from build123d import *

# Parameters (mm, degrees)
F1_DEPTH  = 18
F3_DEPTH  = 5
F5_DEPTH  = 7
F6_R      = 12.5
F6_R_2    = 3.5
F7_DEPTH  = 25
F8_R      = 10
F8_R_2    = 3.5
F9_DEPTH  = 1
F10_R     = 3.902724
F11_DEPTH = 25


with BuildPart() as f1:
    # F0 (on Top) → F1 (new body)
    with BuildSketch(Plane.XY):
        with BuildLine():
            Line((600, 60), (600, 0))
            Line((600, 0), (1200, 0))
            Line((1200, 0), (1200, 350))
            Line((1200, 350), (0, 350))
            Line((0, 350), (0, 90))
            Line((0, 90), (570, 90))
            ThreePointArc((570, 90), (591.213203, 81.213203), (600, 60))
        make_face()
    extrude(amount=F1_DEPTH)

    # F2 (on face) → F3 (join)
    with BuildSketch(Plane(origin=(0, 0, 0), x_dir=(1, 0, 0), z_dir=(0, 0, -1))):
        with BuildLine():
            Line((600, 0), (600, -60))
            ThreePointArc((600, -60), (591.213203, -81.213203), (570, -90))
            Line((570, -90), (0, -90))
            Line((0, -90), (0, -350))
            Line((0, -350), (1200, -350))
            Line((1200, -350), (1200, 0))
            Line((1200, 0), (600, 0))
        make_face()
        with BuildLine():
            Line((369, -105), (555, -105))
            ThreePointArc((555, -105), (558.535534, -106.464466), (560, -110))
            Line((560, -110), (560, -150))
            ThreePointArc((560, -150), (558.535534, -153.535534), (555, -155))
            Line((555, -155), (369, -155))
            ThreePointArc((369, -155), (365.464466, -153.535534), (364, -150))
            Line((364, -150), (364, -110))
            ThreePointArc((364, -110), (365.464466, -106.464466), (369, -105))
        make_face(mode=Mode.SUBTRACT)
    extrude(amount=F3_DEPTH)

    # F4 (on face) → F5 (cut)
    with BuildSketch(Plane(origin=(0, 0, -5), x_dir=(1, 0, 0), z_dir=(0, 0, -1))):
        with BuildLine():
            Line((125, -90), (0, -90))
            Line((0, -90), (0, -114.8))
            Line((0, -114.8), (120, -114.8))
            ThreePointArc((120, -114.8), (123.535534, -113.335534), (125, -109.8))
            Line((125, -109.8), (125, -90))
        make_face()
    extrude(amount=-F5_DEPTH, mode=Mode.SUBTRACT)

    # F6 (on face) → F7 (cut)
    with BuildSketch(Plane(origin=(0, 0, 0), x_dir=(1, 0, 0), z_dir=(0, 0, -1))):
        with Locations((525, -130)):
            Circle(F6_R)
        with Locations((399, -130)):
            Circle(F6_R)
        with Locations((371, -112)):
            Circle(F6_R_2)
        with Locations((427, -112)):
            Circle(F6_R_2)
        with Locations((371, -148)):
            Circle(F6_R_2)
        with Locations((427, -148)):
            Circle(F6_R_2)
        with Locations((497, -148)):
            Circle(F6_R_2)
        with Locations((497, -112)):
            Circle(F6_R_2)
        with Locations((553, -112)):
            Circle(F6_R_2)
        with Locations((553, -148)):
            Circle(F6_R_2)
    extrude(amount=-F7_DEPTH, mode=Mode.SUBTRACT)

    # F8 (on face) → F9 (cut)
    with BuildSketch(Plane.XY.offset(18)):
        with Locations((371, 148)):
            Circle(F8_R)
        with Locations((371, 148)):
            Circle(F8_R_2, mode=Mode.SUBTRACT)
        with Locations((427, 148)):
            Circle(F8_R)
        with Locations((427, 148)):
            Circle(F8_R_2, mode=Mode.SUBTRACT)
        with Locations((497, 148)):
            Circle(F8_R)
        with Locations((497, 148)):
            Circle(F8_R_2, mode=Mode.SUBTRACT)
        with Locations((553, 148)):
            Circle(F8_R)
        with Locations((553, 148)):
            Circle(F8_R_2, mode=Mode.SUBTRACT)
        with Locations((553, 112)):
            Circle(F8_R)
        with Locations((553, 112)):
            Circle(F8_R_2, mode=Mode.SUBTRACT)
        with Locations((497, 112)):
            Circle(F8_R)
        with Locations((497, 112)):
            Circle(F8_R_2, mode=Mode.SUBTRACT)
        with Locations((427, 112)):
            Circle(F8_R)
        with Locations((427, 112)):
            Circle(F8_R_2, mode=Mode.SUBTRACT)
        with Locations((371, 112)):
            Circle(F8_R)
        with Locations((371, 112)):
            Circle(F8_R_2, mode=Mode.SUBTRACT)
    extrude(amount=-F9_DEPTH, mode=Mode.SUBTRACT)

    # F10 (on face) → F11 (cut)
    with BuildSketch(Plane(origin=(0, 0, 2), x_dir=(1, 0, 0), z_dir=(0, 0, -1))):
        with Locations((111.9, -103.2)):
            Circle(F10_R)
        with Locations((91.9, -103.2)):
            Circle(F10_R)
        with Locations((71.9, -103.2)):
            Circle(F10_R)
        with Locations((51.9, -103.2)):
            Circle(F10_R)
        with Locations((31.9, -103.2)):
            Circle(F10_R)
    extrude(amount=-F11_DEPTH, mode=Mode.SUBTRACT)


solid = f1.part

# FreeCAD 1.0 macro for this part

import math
import FreeCAD as App
import Part
import Sketcher
from FreeCAD import Vector
Q = App.Units.Quantity

doc = App.newDocument("Part")
body = doc.addObject("PartDesign::Body", "Body")

# Sketch on XY plane
sketch1 = doc.addObject("Sketcher::SketchObject", "Sketch")
body.addObject(sketch1)
sketch1.AttachmentSupport = (doc.XY_Plane, [""])
sketch1.MapMode = "FlatFace"
sketch1.addGeometry([
    Part.LineSegment(Vector(600, 60, 0), Vector(600, 0, 0)),  # 0
    Part.LineSegment(Vector(600, 0, 0), Vector(1200, 0, 0)),  # 1
    Part.LineSegment(Vector(1200, 0, 0), Vector(1200, 350, 0)),  # 2
    Part.LineSegment(Vector(1200, 350, 0), Vector(0, 350, 0)),  # 3
    Part.LineSegment(Vector(0, 350, 0), Vector(0, 90, 0)),  # 4
    Part.LineSegment(Vector(0, 90, 0), Vector(570, 90, 0)),  # 5
    Part.ArcOfCircle(Part.Circle(Vector(569.999999, 59.999999, 0), Vector(0, 0, 1), 30.000001), math.radians(0.000003), math.radians(89.999997)),  # 6
], False)
sketch1.addConstraint([
    Sketcher.Constraint("Coincident", 0, 2, 1, 1),
    Sketcher.Constraint("Coincident", 1, 2, 2, 1),
    Sketcher.Constraint("Coincident", 2, 2, 3, 1),
    Sketcher.Constraint("Coincident", 3, 2, 4, 1),
    Sketcher.Constraint("Coincident", 4, 2, 5, 1),
    Sketcher.Constraint("Tangent", 5, 2, 6, 2),
    Sketcher.Constraint("Tangent", 6, 1, 0, 1),
    Sketcher.Constraint("Vertical", 0),
    Sketcher.Constraint("Horizontal", 1),
    Sketcher.Constraint("Vertical", 2),
    Sketcher.Constraint("Horizontal", 3),
    Sketcher.Constraint("Vertical", 4),
    Sketcher.Constraint("Horizontal", 5),
    Sketcher.Constraint("PointOnObject", 0, 2, -1),
    Sketcher.Constraint("PointOnObject", 3, 2, -2),
    Sketcher.Constraint("Radius", 6, Q("30.000001 mm")),
    Sketcher.Constraint("DistanceX", 1, 1, 1, 2, Q("600 mm")),
    Sketcher.Constraint("DistanceX", 3, 2, 3, 1, Q("1200 mm")),
    Sketcher.Constraint("DistanceY", 0, 2, 0, 1, Q("60 mm")),
    Sketcher.Constraint("DistanceY", 2, 1, 2, 2, Q("350 mm")),
])
pad1 = doc.addObject("PartDesign::Pad", "Pad")
body.addObject(pad1)
pad1.Profile = sketch1
pad1.Length = 18

# Sketch on XY plane
sketch2 = doc.addObject("Sketcher::SketchObject", "Sketch001")
body.addObject(sketch2)
sketch2.AttachmentSupport = (doc.XY_Plane, [""])
sketch2.MapMode = "FlatFace"
sketch2.addGeometry([
    Part.LineSegment(Vector(600, 0, 0), Vector(600, 60, 0)),  # 0
    Part.ArcOfCircle(Part.Circle(Vector(569.999999, 59.999999, 0), Vector(0, 0, 1), 30.000001), math.radians(0.000003), math.radians(89.999997)),  # 1
    Part.LineSegment(Vector(570, 90, 0), Vector(0, 90, 0)),  # 2
    Part.LineSegment(Vector(0, 90, 0), Vector(0, 350, 0)),  # 3
    Part.LineSegment(Vector(0, 350, 0), Vector(1200, 350, 0)),  # 4
    Part.LineSegment(Vector(1200, 350, 0), Vector(1200, 0, 0)),  # 5
    Part.LineSegment(Vector(1200, 0, 0), Vector(600, 0, 0)),  # 6
    Part.ArcOfCircle(Part.Circle(Vector(369, 110, 0), Vector(0, 0, 1), 5), math.radians(179.999996), math.radians(270.000004)),  # 7
    Part.LineSegment(Vector(369, 105, 0), Vector(555, 105, 0)),  # 8
    Part.ArcOfCircle(Part.Circle(Vector(555, 110, 0), Vector(0, 0, 1), 5), math.radians(-90.000004), math.radians(0.000004)),  # 9
    Part.LineSegment(Vector(560, 110, 0), Vector(560, 150, 0)),  # 10
    Part.ArcOfCircle(Part.Circle(Vector(555, 150, 0), Vector(0, 0, 1), 5), math.radians(-0.000004), math.radians(90.000004)),  # 11
    Part.LineSegment(Vector(555, 155, 0), Vector(369, 155, 0)),  # 12
    Part.ArcOfCircle(Part.Circle(Vector(369, 150, 0), Vector(0, 0, 1), 5), math.radians(89.999996), math.radians(180.000004)),  # 13
    Part.LineSegment(Vector(364, 150, 0), Vector(364, 110, 0)),  # 14
], False)
sketch2.addConstraint([
    Sketcher.Constraint("Tangent", 0, 2, 1, 1),
    Sketcher.Constraint("Tangent", 1, 2, 2, 1),
    Sketcher.Constraint("Coincident", 2, 2, 3, 1),
    Sketcher.Constraint("Coincident", 3, 2, 4, 1),
    Sketcher.Constraint("Coincident", 4, 2, 5, 1),
    Sketcher.Constraint("Coincident", 5, 2, 6, 1),
    Sketcher.Constraint("Coincident", 6, 2, 0, 1),
    Sketcher.Constraint("Tangent", 7, 2, 8, 1),
    Sketcher.Constraint("Tangent", 8, 2, 9, 1),
    Sketcher.Constraint("Tangent", 9, 2, 10, 1),
    Sketcher.Constraint("Tangent", 10, 2, 11, 1),
    Sketcher.Constraint("Tangent", 11, 2, 12, 1),
    Sketcher.Constraint("Tangent", 12, 2, 13, 1),
    Sketcher.Constraint("Tangent", 13, 2, 14, 1),
    Sketcher.Constraint("Tangent", 14, 2, 7, 1),
    Sketcher.Constraint("Vertical", 0),
    Sketcher.Constraint("Horizontal", 2),
    Sketcher.Constraint("Vertical", 3),
    Sketcher.Constraint("Horizontal", 4),
    Sketcher.Constraint("Vertical", 5),
    Sketcher.Constraint("Horizontal", 6),
    Sketcher.Constraint("Horizontal", 8),
    Sketcher.Constraint("Vertical", 10),
    Sketcher.Constraint("Horizontal", 12),
    Sketcher.Constraint("Vertical", 14),
    Sketcher.Constraint("Equal", 7, 9),
    Sketcher.Constraint("Equal", 9, 11),
    Sketcher.Constraint("Equal", 11, 13),
    Sketcher.Constraint("PointOnObject", 2, 2, -2),
    Sketcher.Constraint("PointOnObject", 5, 2, -1),
    Sketcher.Constraint("Radius", 1, Q("30.000001 mm")),
    Sketcher.Constraint("Radius", 7, Q("5 mm")),
    Sketcher.Constraint("DistanceX", 2, 2, 2, 1, Q("570 mm")),
    Sketcher.Constraint("DistanceX", 4, 1, 4, 2, Q("1200 mm")),
    Sketcher.Constraint("DistanceX", 8, 1, 8, 2, Q("186 mm")),
    Sketcher.Constraint("DistanceY", 0, 1, 0, 2, Q("60 mm")),
    Sketcher.Constraint("DistanceY", 3, 1, 3, 2, Q("260 mm")),
    Sketcher.Constraint("DistanceY", 10, 1, 10, 2, Q("40 mm")),
    Sketcher.Constraint("DistanceX", -1, 1, 7, 3, Q("369 mm")),
    Sketcher.Constraint("DistanceY", -1, 1, 7, 3, Q("110 mm")),
])
pad2 = doc.addObject("PartDesign::Pad", "Pad001")
body.addObject(pad2)
pad2.Profile = sketch2
pad2.Length = 5
pad2.Reversed = True

# Sketch on XY plane
sketch3 = doc.addObject("Sketcher::SketchObject", "Sketch002")
body.addObject(sketch3)
sketch3.AttachmentSupport = (doc.XY_Plane, [""])
sketch3.MapMode = "FlatFace"
sketch3.AttachmentOffset = App.Placement(Vector(0, 0, -5), App.Rotation())
sketch3.addGeometry([
    Part.LineSegment(Vector(125, 90, 0), Vector(0, 90, 0)),  # 0
    Part.LineSegment(Vector(0, 90, 0), Vector(0, 114.8, 0)),  # 1
    Part.LineSegment(Vector(0, 114.8, 0), Vector(120, 114.8, 0)),  # 2
    Part.ArcOfCircle(Part.Circle(Vector(120, 109.8, 0), Vector(0, 0, 1), 5), math.radians(-0.000004), math.radians(90.000004)),  # 3
    Part.LineSegment(Vector(125, 109.8, 0), Vector(125, 90, 0)),  # 4
], False)
sketch3.addConstraint([
    Sketcher.Constraint("Coincident", 0, 2, 1, 1),
    Sketcher.Constraint("Coincident", 1, 2, 2, 1),
    Sketcher.Constraint("Tangent", 2, 2, 3, 2),
    Sketcher.Constraint("Tangent", 3, 1, 4, 1),
    Sketcher.Constraint("Coincident", 4, 2, 0, 1),
    Sketcher.Constraint("Horizontal", 0),
    Sketcher.Constraint("Vertical", 1),
    Sketcher.Constraint("Horizontal", 2),
    Sketcher.Constraint("Vertical", 4),
    Sketcher.Constraint("PointOnObject", 0, 2, -2),
    Sketcher.Constraint("Radius", 3, Q("5 mm")),
    Sketcher.Constraint("DistanceX", 0, 2, 0, 1, Q("125 mm")),
    Sketcher.Constraint("DistanceY", 1, 1, 1, 2, Q("24.8 mm")),
    Sketcher.Constraint("DistanceY", -1, 1, 0, 2, Q("90 mm")),
])
pocket1 = doc.addObject("PartDesign::Pocket", "Pocket")
body.addObject(pocket1)
pocket1.Profile = sketch3
pocket1.Length = 7
pocket1.Reversed = True

# Sketch on XY plane
sketch4 = doc.addObject("Sketcher::SketchObject", "Sketch003")
body.addObject(sketch4)
sketch4.AttachmentSupport = (doc.XY_Plane, [""])
sketch4.MapMode = "FlatFace"
sketch4.addGeometry([
    Part.Circle(Vector(525, 130, 0), Vector(0, 0, 1), 12.5),  # 0
    Part.Circle(Vector(399, 130, 0), Vector(0, 0, 1), 12.5),  # 1
    Part.Circle(Vector(371, 112, 0), Vector(0, 0, 1), 3.5),  # 2
    Part.Circle(Vector(427, 112, 0), Vector(0, 0, 1), 3.5),  # 3
    Part.Circle(Vector(371, 148, 0), Vector(0, 0, 1), 3.5),  # 4
    Part.Circle(Vector(427, 148, 0), Vector(0, 0, 1), 3.5),  # 5
    Part.Circle(Vector(497, 148, 0), Vector(0, 0, 1), 3.5),  # 6
    Part.Circle(Vector(497, 112, 0), Vector(0, 0, 1), 3.5),  # 7
    Part.Circle(Vector(553, 112, 0), Vector(0, 0, 1), 3.5),  # 8
    Part.Circle(Vector(553, 148, 0), Vector(0, 0, 1), 3.5),  # 9
], False)
sketch4.addConstraint([
    Sketcher.Constraint("Equal", 0, 1),
    Sketcher.Constraint("Equal", 2, 3),
    Sketcher.Constraint("Equal", 3, 4),
    Sketcher.Constraint("Equal", 4, 5),
    Sketcher.Constraint("Equal", 5, 6),
    Sketcher.Constraint("Equal", 6, 7),
    Sketcher.Constraint("Equal", 7, 8),
    Sketcher.Constraint("Equal", 8, 9),
    Sketcher.Constraint("Horizontal", 0, 3, 1, 3),
    Sketcher.Constraint("Horizontal", 2, 3, 3, 3),
    Sketcher.Constraint("Horizontal", 4, 3, 5, 3),
    Sketcher.Constraint("Horizontal", 5, 3, 6, 3),
    Sketcher.Constraint("Horizontal", 3, 3, 7, 3),
    Sketcher.Constraint("Horizontal", 7, 3, 8, 3),
    Sketcher.Constraint("Horizontal", 6, 3, 9, 3),
    Sketcher.Constraint("Vertical", 2, 3, 4, 3),
    Sketcher.Constraint("Vertical", 3, 3, 5, 3),
    Sketcher.Constraint("Vertical", 6, 3, 7, 3),
    Sketcher.Constraint("Vertical", 8, 3, 9, 3),
    Sketcher.Constraint("Diameter", 0, Q("25 mm")),
    Sketcher.Constraint("Diameter", 2, Q("7 mm")),
    Sketcher.Constraint("DistanceX", -1, 1, 0, 3, Q("525 mm")),
    Sketcher.Constraint("DistanceY", -1, 1, 0, 3, Q("130 mm")),
    Sketcher.Constraint("DistanceX", -1, 1, 1, 3, Q("399 mm")),
    Sketcher.Constraint("DistanceX", -1, 1, 2, 3, Q("371 mm")),
    Sketcher.Constraint("DistanceY", -1, 1, 2, 3, Q("112 mm")),
    Sketcher.Constraint("DistanceX", -1, 1, 3, 3, Q("427 mm")),
    Sketcher.Constraint("DistanceY", -1, 1, 4, 3, Q("148 mm")),
    Sketcher.Constraint("DistanceX", -1, 1, 6, 3, Q("497 mm")),
    Sketcher.Constraint("DistanceX", -1, 1, 8, 3, Q("553 mm")),
])
pocket2 = doc.addObject("PartDesign::Pocket", "Pocket001")
body.addObject(pocket2)
pocket2.Profile = sketch4
pocket2.Length = 25
pocket2.Reversed = True

# Sketch on XY plane
sketch5 = doc.addObject("Sketcher::SketchObject", "Sketch004")
body.addObject(sketch5)
sketch5.AttachmentSupport = (doc.XY_Plane, [""])
sketch5.MapMode = "FlatFace"
sketch5.AttachmentOffset = App.Placement(Vector(0, 0, 18), App.Rotation())
sketch5.addGeometry([
    Part.Circle(Vector(371, 148, 0), Vector(0, 0, 1), 10),  # 0
    Part.Circle(Vector(371, 148, 0), Vector(0, 0, 1), 3.5),  # 1
    Part.Circle(Vector(427, 148, 0), Vector(0, 0, 1), 10),  # 2
    Part.Circle(Vector(427, 148, 0), Vector(0, 0, 1), 3.5),  # 3
    Part.Circle(Vector(497, 148, 0), Vector(0, 0, 1), 10),  # 4
    Part.Circle(Vector(497, 148, 0), Vector(0, 0, 1), 3.5),  # 5
    Part.Circle(Vector(553, 148, 0), Vector(0, 0, 1), 10),  # 6
    Part.Circle(Vector(553, 148, 0), Vector(0, 0, 1), 3.5),  # 7
    Part.Circle(Vector(553, 112, 0), Vector(0, 0, 1), 10),  # 8
    Part.Circle(Vector(553, 112, 0), Vector(0, 0, 1), 3.5),  # 9
    Part.Circle(Vector(497, 112, 0), Vector(0, 0, 1), 10),  # 10
    Part.Circle(Vector(497, 112, 0), Vector(0, 0, 1), 3.5),  # 11
    Part.Circle(Vector(427, 112, 0), Vector(0, 0, 1), 10),  # 12
    Part.Circle(Vector(427, 112, 0), Vector(0, 0, 1), 3.5),  # 13
    Part.Circle(Vector(371, 112, 0), Vector(0, 0, 1), 10),  # 14
    Part.Circle(Vector(371, 112, 0), Vector(0, 0, 1), 3.5),  # 15
], False)
sketch5.addConstraint([
    Sketcher.Constraint("Coincident", 1, 3, 0, 3),
    Sketcher.Constraint("Coincident", 3, 3, 2, 3),
    Sketcher.Constraint("Coincident", 5, 3, 4, 3),
    Sketcher.Constraint("Coincident", 7, 3, 6, 3),
    Sketcher.Constraint("Coincident", 9, 3, 8, 3),
    Sketcher.Constraint("Coincident", 11, 3, 10, 3),
    Sketcher.Constraint("Coincident", 13, 3, 12, 3),
    Sketcher.Constraint("Coincident", 15, 3, 14, 3),
    Sketcher.Constraint("Equal", 0, 2),
    Sketcher.Constraint("Equal", 1, 3),
    Sketcher.Constraint("Equal", 2, 4),
    Sketcher.Constraint("Equal", 3, 5),
    Sketcher.Constraint("Equal", 4, 6),
    Sketcher.Constraint("Equal", 5, 7),
    Sketcher.Constraint("Equal", 6, 8),
    Sketcher.Constraint("Equal", 7, 9),
    Sketcher.Constraint("Equal", 8, 10),
    Sketcher.Constraint("Equal", 9, 11),
    Sketcher.Constraint("Equal", 10, 12),
    Sketcher.Constraint("Equal", 11, 13),
    Sketcher.Constraint("Equal", 12, 14),
    Sketcher.Constraint("Equal", 13, 15),
    Sketcher.Constraint("Horizontal", 1, 3, 2, 3),
    Sketcher.Constraint("Horizontal", 3, 3, 4, 3),
    Sketcher.Constraint("Horizontal", 5, 3, 6, 3),
    Sketcher.Constraint("Horizontal", 9, 3, 10, 3),
    Sketcher.Constraint("Horizontal", 11, 3, 12, 3),
    Sketcher.Constraint("Horizontal", 13, 3, 14, 3),
    Sketcher.Constraint("Vertical", 7, 3, 8, 3),
    Sketcher.Constraint("Vertical", 5, 3, 10, 3),
    Sketcher.Constraint("Vertical", 3, 3, 12, 3),
    Sketcher.Constraint("Vertical", 1, 3, 14, 3),
    Sketcher.Constraint("Diameter", 0, Q("20 mm")),
    Sketcher.Constraint("Diameter", 1, Q("7 mm")),
    Sketcher.Constraint("DistanceX", -1, 1, 0, 3, Q("371 mm")),
    Sketcher.Constraint("DistanceY", -1, 1, 0, 3, Q("148 mm")),
    Sketcher.Constraint("DistanceX", -1, 1, 2, 3, Q("427 mm")),
    Sketcher.Constraint("DistanceX", -1, 1, 4, 3, Q("497 mm")),
    Sketcher.Constraint("DistanceX", -1, 1, 6, 3, Q("553 mm")),
    Sketcher.Constraint("DistanceY", -1, 1, 8, 3, Q("112 mm")),
])
pocket3 = doc.addObject("PartDesign::Pocket", "Pocket002")
body.addObject(pocket3)
pocket3.Profile = sketch5
pocket3.Length = 1

# Sketch on XY plane
sketch6 = doc.addObject("Sketcher::SketchObject", "Sketch005")
body.addObject(sketch6)
sketch6.AttachmentSupport = (doc.XY_Plane, [""])
sketch6.MapMode = "FlatFace"
sketch6.AttachmentOffset = App.Placement(Vector(0, 0, 2), App.Rotation())
sketch6.addGeometry([
    Part.Circle(Vector(111.9, 103.2, 0), Vector(0, 0, 1), 3.902724),  # 0
    Part.Circle(Vector(91.9, 103.2, 0), Vector(0, 0, 1), 3.902724),  # 1
    Part.Circle(Vector(71.9, 103.2, 0), Vector(0, 0, 1), 3.902724),  # 2
    Part.Circle(Vector(51.9, 103.2, 0), Vector(0, 0, 1), 3.902724),  # 3
    Part.Circle(Vector(31.9, 103.2, 0), Vector(0, 0, 1), 3.902724),  # 4
], False)
sketch6.addConstraint([
    Sketcher.Constraint("Equal", 0, 1),
    Sketcher.Constraint("Equal", 1, 2),
    Sketcher.Constraint("Equal", 2, 3),
    Sketcher.Constraint("Equal", 3, 4),
    Sketcher.Constraint("Horizontal", 0, 3, 1, 3),
    Sketcher.Constraint("Horizontal", 1, 3, 2, 3),
    Sketcher.Constraint("Horizontal", 2, 3, 3, 3),
    Sketcher.Constraint("Horizontal", 3, 3, 4, 3),
    Sketcher.Constraint("DistanceX", 1, 3, 0, 3, Q("20 mm")),
    Sketcher.Constraint("DistanceX", 2, 3, 1, 3, Q("20 mm")),
    Sketcher.Constraint("DistanceX", 3, 3, 2, 3, Q("20 mm")),
    Sketcher.Constraint("DistanceX", 4, 3, 3, 3, Q("20 mm")),
    Sketcher.Constraint("DistanceX", -1, 1, 0, 3, Q("111.9 mm")),
    Sketcher.Constraint("DistanceY", -1, 1, 0, 3, Q("103.2 mm")),
    Sketcher.Constraint("Diameter", 0, Q("7.805448 mm")),
])
pocket4 = doc.addObject("PartDesign::Pocket", "Pocket003")
body.addObject(pocket4)
pocket4.Profile = sketch6
pocket4.Length = 25
pocket4.Reversed = True

doc.recompute()
